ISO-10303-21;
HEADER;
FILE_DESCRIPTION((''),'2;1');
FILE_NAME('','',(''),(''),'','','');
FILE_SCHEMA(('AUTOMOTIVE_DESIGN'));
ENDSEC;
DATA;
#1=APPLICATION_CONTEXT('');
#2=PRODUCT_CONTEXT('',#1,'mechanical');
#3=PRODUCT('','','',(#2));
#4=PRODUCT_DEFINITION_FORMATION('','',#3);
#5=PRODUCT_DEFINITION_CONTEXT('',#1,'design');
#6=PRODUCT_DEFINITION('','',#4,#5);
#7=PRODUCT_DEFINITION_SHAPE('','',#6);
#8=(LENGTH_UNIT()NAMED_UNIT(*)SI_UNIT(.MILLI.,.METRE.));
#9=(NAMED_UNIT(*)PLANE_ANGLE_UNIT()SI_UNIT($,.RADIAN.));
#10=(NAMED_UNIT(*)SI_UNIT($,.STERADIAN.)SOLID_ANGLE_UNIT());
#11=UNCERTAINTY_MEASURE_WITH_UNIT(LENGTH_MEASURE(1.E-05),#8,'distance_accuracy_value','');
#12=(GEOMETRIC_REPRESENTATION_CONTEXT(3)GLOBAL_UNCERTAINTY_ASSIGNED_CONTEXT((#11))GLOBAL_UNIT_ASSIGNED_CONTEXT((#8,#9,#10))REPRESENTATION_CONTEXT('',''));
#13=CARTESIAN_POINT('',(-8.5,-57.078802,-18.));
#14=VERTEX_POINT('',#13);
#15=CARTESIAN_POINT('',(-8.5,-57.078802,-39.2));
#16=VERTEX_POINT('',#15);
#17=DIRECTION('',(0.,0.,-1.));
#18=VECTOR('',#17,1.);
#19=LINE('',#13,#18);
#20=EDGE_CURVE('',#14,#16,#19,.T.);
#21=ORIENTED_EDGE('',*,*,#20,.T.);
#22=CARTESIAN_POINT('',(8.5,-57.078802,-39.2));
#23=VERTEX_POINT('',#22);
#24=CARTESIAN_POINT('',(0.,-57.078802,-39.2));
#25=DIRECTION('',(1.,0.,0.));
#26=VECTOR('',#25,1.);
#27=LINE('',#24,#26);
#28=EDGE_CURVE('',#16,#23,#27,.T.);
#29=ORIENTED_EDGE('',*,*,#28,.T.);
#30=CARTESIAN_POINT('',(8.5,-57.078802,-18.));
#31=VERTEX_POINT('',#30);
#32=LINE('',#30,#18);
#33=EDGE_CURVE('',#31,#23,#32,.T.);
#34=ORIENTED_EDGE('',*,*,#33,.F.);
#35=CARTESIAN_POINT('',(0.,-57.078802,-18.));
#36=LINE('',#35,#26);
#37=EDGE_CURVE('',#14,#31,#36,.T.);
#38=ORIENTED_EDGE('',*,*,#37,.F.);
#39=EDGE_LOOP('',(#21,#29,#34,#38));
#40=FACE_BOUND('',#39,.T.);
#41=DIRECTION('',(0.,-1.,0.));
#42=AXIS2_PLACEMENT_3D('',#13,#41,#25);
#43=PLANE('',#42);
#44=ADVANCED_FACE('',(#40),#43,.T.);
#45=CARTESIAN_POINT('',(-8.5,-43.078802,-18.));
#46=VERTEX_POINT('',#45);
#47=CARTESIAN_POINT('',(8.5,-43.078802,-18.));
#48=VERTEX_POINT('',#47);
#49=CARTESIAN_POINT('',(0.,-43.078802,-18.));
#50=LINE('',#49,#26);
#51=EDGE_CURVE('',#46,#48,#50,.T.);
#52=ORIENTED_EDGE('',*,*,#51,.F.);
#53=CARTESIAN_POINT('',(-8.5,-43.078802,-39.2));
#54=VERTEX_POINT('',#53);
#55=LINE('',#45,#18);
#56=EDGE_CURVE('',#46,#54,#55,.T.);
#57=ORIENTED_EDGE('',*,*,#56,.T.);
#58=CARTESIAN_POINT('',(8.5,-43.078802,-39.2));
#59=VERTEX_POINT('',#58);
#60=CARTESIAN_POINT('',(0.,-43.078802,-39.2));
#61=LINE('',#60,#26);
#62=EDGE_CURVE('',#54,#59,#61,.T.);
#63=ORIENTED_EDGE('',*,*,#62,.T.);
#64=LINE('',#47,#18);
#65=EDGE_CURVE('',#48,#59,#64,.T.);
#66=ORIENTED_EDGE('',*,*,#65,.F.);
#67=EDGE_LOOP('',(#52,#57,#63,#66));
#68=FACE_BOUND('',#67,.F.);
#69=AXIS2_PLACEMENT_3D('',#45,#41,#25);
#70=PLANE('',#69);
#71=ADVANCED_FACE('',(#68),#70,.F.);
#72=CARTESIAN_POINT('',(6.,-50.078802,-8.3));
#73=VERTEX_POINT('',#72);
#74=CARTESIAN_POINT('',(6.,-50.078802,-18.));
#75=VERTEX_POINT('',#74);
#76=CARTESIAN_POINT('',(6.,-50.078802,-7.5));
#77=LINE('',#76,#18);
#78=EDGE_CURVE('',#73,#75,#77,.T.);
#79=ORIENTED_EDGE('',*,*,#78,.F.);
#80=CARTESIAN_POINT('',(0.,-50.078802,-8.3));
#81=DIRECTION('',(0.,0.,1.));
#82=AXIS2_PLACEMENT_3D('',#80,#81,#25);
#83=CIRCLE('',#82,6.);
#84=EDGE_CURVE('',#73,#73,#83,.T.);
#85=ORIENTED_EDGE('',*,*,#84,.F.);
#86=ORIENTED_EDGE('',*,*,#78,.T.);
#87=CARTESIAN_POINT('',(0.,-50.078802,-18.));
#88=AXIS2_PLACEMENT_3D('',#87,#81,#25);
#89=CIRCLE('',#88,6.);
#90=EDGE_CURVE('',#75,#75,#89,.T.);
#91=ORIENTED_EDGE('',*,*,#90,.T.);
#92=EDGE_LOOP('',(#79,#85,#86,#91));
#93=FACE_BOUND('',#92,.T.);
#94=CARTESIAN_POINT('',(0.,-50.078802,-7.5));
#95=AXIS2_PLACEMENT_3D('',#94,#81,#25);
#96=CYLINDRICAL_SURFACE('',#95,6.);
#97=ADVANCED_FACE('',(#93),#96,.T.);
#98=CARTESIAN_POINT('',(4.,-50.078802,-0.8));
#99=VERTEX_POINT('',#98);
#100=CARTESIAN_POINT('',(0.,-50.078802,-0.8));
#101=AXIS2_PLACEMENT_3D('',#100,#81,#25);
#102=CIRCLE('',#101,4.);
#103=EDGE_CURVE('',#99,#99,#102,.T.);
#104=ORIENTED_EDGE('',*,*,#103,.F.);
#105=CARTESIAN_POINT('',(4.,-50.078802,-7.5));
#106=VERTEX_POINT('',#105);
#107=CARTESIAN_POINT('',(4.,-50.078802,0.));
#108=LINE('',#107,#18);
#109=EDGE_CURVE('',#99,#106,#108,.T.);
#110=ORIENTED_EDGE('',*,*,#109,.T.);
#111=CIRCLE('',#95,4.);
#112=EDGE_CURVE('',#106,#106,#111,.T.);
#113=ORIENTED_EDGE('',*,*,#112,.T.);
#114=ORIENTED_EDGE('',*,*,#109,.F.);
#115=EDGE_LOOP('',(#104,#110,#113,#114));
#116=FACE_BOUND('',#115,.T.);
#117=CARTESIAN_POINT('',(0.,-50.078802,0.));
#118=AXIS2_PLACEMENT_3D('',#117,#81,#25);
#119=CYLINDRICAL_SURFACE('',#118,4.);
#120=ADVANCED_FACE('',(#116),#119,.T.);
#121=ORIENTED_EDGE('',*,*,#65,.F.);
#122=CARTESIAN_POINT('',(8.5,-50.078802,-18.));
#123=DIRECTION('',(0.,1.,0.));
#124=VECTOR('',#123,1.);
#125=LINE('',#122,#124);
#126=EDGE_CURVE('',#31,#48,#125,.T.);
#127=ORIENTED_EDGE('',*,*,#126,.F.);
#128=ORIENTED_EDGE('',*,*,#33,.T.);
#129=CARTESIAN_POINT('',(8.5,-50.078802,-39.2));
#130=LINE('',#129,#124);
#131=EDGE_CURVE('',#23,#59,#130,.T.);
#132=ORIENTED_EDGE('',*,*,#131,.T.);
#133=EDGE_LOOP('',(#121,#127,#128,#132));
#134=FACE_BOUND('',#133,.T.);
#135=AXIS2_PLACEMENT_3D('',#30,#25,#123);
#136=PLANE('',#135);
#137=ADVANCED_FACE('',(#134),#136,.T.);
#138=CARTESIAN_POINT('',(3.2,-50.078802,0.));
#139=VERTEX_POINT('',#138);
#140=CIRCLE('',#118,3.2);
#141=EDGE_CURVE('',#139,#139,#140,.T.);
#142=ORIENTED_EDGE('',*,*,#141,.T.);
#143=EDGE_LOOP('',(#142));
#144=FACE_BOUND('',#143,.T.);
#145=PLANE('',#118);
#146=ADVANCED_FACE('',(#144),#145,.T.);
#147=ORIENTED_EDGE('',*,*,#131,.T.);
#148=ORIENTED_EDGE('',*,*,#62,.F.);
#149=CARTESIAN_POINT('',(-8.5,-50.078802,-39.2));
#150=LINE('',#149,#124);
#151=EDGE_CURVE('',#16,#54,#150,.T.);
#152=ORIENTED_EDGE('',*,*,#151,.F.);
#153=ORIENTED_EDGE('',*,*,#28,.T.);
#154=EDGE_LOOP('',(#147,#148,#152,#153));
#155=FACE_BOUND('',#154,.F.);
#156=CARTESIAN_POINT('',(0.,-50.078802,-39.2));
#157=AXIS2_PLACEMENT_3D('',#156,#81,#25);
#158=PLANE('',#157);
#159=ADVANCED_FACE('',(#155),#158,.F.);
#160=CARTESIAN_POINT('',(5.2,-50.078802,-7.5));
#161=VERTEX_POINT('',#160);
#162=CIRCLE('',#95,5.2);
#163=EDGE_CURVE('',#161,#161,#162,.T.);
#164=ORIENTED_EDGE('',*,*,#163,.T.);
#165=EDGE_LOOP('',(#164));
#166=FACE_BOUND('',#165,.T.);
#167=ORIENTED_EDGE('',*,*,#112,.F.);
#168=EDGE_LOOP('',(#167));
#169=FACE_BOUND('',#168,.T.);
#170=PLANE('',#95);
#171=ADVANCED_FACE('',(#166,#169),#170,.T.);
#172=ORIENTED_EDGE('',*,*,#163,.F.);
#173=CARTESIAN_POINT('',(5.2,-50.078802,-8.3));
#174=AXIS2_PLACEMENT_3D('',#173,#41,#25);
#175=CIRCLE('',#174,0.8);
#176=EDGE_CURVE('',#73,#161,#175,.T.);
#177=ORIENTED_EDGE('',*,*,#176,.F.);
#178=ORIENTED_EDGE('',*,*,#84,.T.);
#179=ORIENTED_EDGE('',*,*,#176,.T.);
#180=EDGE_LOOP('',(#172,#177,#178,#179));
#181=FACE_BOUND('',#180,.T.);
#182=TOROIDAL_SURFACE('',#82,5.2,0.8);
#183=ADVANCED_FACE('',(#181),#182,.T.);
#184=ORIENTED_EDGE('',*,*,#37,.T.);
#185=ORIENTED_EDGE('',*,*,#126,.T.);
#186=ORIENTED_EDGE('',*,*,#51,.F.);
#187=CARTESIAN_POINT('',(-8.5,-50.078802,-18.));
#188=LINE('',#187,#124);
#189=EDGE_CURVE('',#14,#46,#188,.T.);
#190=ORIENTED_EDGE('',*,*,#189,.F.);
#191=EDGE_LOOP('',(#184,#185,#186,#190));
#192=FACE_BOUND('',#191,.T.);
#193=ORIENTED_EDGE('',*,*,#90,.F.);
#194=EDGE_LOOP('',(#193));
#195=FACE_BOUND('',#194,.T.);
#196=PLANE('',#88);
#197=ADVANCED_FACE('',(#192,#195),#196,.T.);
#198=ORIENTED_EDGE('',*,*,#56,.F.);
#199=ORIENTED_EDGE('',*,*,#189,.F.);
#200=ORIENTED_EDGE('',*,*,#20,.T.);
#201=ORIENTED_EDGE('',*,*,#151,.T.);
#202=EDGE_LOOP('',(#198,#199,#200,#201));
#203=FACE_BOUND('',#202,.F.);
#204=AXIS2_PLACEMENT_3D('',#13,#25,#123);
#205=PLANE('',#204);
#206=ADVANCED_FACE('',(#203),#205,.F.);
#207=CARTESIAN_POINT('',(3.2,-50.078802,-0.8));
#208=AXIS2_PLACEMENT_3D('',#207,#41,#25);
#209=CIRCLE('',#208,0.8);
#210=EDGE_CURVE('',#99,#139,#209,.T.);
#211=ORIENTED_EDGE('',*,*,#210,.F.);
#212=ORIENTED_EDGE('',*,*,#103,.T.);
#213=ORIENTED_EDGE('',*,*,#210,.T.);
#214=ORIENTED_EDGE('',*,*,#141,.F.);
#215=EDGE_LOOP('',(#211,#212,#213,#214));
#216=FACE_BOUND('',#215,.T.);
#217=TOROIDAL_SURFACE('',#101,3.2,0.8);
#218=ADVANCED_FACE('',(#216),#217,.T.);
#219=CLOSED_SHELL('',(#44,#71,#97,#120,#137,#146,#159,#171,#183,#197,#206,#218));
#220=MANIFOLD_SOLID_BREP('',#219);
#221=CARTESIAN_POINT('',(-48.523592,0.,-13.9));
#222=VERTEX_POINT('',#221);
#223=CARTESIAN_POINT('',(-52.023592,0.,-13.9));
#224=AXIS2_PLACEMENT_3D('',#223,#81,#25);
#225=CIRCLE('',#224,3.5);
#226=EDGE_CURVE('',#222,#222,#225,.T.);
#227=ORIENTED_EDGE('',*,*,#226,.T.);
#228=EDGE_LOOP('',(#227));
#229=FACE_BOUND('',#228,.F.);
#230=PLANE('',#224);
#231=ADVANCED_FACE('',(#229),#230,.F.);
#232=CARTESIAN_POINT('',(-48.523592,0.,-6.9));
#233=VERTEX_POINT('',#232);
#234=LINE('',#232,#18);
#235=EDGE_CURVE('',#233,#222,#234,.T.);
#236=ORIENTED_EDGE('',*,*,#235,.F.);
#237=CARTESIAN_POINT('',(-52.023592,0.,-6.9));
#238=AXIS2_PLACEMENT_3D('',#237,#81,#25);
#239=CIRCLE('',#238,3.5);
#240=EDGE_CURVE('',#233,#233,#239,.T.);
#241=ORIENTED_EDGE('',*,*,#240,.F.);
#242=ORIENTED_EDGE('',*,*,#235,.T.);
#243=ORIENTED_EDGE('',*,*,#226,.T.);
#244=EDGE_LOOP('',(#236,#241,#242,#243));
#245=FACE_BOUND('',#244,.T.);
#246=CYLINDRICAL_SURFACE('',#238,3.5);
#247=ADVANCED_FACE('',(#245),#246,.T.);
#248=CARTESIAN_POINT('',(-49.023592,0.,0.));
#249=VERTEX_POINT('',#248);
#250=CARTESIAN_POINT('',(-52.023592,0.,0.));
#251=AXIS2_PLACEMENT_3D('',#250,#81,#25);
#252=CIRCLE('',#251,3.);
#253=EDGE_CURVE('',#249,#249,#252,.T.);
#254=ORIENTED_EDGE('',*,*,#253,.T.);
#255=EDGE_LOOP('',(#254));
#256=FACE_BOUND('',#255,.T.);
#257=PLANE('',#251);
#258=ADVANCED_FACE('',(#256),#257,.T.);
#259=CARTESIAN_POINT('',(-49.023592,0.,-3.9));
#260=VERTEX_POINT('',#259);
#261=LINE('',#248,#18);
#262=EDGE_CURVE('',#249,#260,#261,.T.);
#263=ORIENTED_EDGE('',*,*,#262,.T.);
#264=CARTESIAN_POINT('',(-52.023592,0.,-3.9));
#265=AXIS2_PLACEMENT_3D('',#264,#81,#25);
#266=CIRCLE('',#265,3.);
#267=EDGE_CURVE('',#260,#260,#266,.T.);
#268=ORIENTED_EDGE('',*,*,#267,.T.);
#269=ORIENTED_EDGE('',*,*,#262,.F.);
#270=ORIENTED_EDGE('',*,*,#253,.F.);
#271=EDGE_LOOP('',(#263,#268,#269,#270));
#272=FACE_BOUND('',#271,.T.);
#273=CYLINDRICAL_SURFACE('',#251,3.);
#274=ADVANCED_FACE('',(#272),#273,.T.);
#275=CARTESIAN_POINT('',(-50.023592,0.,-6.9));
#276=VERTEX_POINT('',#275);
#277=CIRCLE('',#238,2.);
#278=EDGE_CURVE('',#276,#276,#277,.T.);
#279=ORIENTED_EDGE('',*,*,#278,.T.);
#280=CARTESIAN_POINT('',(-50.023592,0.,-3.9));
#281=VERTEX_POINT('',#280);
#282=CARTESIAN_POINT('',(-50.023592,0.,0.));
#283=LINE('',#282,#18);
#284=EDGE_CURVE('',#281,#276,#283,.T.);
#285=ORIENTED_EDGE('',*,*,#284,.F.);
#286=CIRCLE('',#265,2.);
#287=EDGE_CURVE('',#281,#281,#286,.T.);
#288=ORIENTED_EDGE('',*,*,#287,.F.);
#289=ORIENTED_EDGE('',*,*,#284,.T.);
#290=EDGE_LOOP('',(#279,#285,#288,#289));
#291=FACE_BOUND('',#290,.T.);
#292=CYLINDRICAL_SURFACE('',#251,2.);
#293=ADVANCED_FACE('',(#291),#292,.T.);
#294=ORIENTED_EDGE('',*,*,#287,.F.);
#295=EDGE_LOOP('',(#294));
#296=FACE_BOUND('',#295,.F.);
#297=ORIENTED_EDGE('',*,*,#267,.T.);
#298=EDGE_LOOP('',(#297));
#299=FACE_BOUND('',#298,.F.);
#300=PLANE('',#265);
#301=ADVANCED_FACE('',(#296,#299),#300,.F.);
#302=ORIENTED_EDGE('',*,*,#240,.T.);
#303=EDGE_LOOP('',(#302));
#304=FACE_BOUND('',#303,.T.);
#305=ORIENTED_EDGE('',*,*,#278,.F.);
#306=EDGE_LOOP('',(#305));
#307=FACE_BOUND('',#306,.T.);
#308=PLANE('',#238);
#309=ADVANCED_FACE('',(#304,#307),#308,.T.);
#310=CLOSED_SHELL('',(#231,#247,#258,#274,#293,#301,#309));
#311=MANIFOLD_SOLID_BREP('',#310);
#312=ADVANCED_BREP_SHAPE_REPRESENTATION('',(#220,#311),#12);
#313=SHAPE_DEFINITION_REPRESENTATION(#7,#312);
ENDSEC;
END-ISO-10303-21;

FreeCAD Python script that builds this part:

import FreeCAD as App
import Part
import Sketcher
from FreeCAD import Vector


def edges_at(feature, points):
    """Names of the edges that pass closest to the given points."""
    edges = feature.Shape.Edges
    near = lambda p: min(range(len(edges)), key=lambda i: edges[i].distToShape(Part.Vertex(*p))[0])
    return sorted({f"Edge{near(p) + 1}" for p in points})

doc = App.newDocument("Part")
body = doc.addObject("PartDesign::Body", "Body")

sketch1 = doc.addObject("Sketcher::SketchObject", "Sketch")
body.addObject(sketch1)
sketch1.AttachmentSupport = (doc.XY_Plane, [""])
sketch1.MapMode = "FlatFace"
sketch1.addGeometry(Part.Circle(Vector(-52.023592, 0, 0), Vector(0, 0, 1), 3), False)
sketch1.addConstraint(Sketcher.Constraint("PointOnObject", 0, 3, -1))
sketch1.addConstraint(Sketcher.Constraint("Diameter", 0, 6.0))
sketch1.addConstraint(Sketcher.Constraint("DistanceX", 0, 3, -1, 1, 52.023592))
pad1 = doc.addObject("PartDesign::Pad", "Pad")
body.addObject(pad1)
pad1.Profile = sketch1
pad1.Length = 3.9
pad1.Reversed = True

sketch2 = doc.addObject("Sketcher::SketchObject", "Sketch001")
body.addObject(sketch2)
sketch2.AttachmentSupport = (doc.XY_Plane, [""])
sketch2.MapMode = "FlatFace"
sketch2.addGeometry(Part.Circle(Vector(-52.023592, 0, 0), Vector(0, 0, 1), 2), False)
sketch2.addConstraint(Sketcher.Constraint("PointOnObject", 0, 3, -1))
sketch2.addConstraint(Sketcher.Constraint("Diameter", 0, 4.0))
sketch2.addConstraint(Sketcher.Constraint("DistanceX", 0, 3, -1, 1, 52.023592))
pad2 = doc.addObject("PartDesign::Pad", "Pad001")
body.addObject(pad2)
pad2.Profile = sketch2
pad2.Length = 6.9
pad2.Reversed = True

sketch3 = doc.addObject("Sketcher::SketchObject", "Sketch002")
body.addObject(sketch3)
sketch3.AttachmentSupport = (doc.XY_Plane, [""])
sketch3.MapMode = "FlatFace"
sketch3.AttachmentOffset = App.Placement(Vector(0, 0, -6.9), App.Rotation())
sketch3.addGeometry(Part.Circle(Vector(-52.023592, 0, 0), Vector(0, 0, 1), 3.5), False)
sketch3.addConstraint(Sketcher.Constraint("PointOnObject", 0, 3, -1))
sketch3.addConstraint(Sketcher.Constraint("Diameter", 0, 7.0))
sketch3.addConstraint(Sketcher.Constraint("DistanceX", 0, 3, -1, 1, 52.023592))
pad3 = doc.addObject("PartDesign::Pad", "Pad002")
body.addObject(pad3)
pad3.Profile = sketch3
pad3.Length = 7
pad3.Reversed = True
body2 = doc.addObject("PartDesign::Body", "Body001")

sketch4 = doc.addObject("Sketcher::SketchObject", "Sketch003")
body2.addObject(sketch4)
sketch4.AttachmentSupport = (doc.getObject("XY_Plane001"), [""])
sketch4.MapMode = "FlatFace"
sketch4.addGeometry(Part.Circle(Vector(0, -50.078802, 0), Vector(0, 0, 1), 4), False)
sketch4.addConstraint(Sketcher.Constraint("PointOnObject", 0, 3, -2))
sketch4.addConstraint(Sketcher.Constraint("Diameter", 0, 8.0))
sketch4.addConstraint(Sketcher.Constraint("DistanceY", 0, 3, -1, 1, 50.078802))
pad4 = doc.addObject("PartDesign::Pad", "Pad003")
body2.addObject(pad4)
pad4.Profile = sketch4
pad4.Length = 7.5
pad4.Reversed = True

sketch5 = doc.addObject("Sketcher::SketchObject", "Sketch004")
body2.addObject(sketch5)
sketch5.AttachmentSupport = (doc.getObject("XY_Plane001"), [""])
sketch5.MapMode = "FlatFace"
sketch5.AttachmentOffset = App.Placement(Vector(0, 0, -7.5), App.Rotation())
sketch5.addGeometry(Part.Circle(Vector(0, -50.078802, 0), Vector(0, 0, 1), 6), False)
sketch5.addConstraint(Sketcher.Constraint("PointOnObject", 0, 3, -2))
sketch5.addConstraint(Sketcher.Constraint("Diameter", 0, 12.0))
sketch5.addConstraint(Sketcher.Constraint("DistanceY", 0, 3, -1, 1, 50.078802))
pad5 = doc.addObject("PartDesign::Pad", "Pad004")
body2.addObject(pad5)
pad5.Profile = sketch5
pad5.Length = 10.5
pad5.Reversed = True

sketch6 = doc.addObject("Sketcher::SketchObject", "Sketch005")
body2.addObject(sketch6)
sketch6.AttachmentSupport = (doc.getObject("XY_Plane001"), [""])
sketch6.MapMode = "FlatFace"
sketch6.AttachmentOffset = App.Placement(Vector(0, 0, -18), App.Rotation())
sketch6.addGeometry(Part.LineSegment(Vector(-8.5, -43.078802, 0), Vector(-8.5, -57.078802, 0)), False)
sketch6.addGeometry(Part.LineSegment(Vector(-8.5, -57.078802, 0), Vector(8.5, -57.078802, 0)), False)
sketch6.addGeometry(Part.LineSegment(Vector(8.5, -57.078802, 0), Vector(8.5, -43.078802, 0)), False)
sketch6.addGeometry(Part.LineSegment(Vector(8.5, -43.078802, 0), Vector(-8.5, -43.078802, 0)), False)
sketch6.addConstraint(Sketcher.Constraint("Coincident", 0, 2, 1, 1))
sketch6.addConstraint(Sketcher.Constraint("Coincident", 1, 2, 2, 1))
sketch6.addConstraint(Sketcher.Constraint("Coincident", 2, 2, 3, 1))
sketch6.addConstraint(Sketcher.Constraint("Coincident", 3, 2, 0, 1))
sketch6.addConstraint(Sketcher.Constraint("Vertical", 0))
sketch6.addConstraint(Sketcher.Constraint("Horizontal", 1))
sketch6.addConstraint(Sketcher.Constraint("Vertical", 2))
sketch6.addConstraint(Sketcher.Constraint("Horizontal", 3))
sketch6.addConstraint(Sketcher.Constraint("DistanceX", 1, 1, 1, 2, 17.0))
sketch6.addConstraint(Sketcher.Constraint("DistanceY", 0, 2, 0, 1, 14.0))
sketch6.addConstraint(Sketcher.Constraint("DistanceX", 0, 2, -1, 1, 8.5))
sketch6.addConstraint(Sketcher.Constraint("DistanceY", 0, 2, -1, 1, 57.078802))
pad6 = doc.addObject("PartDesign::Pad", "Pad005")
body2.addObject(pad6)
pad6.Profile = sketch6
pad6.Length = 21.2
pad6.Reversed = True
doc.recompute()

fillet = doc.addObject("PartDesign::Fillet", "Fillet")
body2.addObject(fillet)
fillet.Base = (pad6, edges_at(pad6, [(-6, -50.079, -7.5), (-4, -50.079, 0)]))
fillet.Radius = 0.8

doc.recompute()
